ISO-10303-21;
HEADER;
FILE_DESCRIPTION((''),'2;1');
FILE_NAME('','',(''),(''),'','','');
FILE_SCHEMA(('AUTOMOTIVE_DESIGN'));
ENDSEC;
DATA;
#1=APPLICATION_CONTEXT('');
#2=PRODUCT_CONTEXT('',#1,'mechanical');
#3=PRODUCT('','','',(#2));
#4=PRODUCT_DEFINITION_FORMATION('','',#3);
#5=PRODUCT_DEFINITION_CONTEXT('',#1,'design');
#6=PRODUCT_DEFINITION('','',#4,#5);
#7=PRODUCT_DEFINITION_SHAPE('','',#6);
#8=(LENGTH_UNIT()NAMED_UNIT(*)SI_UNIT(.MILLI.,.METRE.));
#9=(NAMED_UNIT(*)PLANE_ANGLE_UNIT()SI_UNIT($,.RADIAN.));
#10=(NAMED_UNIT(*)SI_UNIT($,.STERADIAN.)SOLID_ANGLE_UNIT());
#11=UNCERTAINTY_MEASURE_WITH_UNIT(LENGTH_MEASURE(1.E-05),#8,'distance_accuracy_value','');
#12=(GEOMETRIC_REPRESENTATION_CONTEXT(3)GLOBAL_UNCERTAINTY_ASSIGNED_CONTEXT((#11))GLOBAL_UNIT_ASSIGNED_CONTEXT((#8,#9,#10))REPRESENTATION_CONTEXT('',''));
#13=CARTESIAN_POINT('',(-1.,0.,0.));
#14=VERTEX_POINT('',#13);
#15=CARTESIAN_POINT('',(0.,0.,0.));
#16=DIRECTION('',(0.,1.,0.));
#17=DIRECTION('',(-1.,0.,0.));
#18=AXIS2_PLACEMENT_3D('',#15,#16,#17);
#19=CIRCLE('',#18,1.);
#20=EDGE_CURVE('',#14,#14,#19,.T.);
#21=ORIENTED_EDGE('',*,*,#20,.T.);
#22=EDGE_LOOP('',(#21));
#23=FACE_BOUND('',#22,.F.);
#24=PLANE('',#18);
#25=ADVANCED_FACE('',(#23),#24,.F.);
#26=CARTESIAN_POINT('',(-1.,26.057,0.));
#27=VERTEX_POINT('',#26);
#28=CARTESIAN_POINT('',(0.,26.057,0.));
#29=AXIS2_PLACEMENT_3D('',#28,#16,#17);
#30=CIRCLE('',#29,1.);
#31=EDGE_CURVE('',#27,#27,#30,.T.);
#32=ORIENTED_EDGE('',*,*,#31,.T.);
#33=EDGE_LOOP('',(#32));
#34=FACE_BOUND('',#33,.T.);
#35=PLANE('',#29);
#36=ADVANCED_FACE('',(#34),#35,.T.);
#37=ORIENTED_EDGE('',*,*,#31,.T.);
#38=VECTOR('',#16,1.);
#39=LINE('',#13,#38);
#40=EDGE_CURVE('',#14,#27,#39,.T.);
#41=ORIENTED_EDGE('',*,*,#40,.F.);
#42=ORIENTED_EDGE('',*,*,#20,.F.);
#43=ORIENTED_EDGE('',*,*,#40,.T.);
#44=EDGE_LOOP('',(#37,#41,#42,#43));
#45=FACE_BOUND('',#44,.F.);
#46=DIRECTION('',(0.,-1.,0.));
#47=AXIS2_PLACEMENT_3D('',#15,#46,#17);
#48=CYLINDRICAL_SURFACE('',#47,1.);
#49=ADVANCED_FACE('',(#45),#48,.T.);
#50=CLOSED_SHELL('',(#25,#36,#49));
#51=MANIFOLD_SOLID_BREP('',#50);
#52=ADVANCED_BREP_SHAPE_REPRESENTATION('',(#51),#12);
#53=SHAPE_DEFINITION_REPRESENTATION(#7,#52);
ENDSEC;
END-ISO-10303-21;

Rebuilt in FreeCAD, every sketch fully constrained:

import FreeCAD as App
import Part
import Sketcher
from FreeCAD import Vector
Q = App.Units.Quantity

doc = App.newDocument("Part")
body = doc.addObject("PartDesign::Body", "Body")

# Sketch on XZ plane
sketch1 = body.newObject("Sketcher::SketchObject", "Sketch")
sketch1.AttachmentSupport = (doc.getObject("XZ_Plane"), [""])
sketch1.MapMode = "FlatFace"
sketch1.addGeometry(Part.Circle(Vector(0, 0, 0), Vector(0, 0, 1), 1), False)
sketch1.addConstraint([
    Sketcher.Constraint("Coincident", 0, 3, -1, 1),
    Sketcher.Constraint("Diameter", 0, Q("2 mm")),
])
pad1 = body.newObject("PartDesign::Pad", "Pad")
pad1.Profile = sketch1
pad1.Length = 26.057
pad1.Reversed = True

doc.recompute()
